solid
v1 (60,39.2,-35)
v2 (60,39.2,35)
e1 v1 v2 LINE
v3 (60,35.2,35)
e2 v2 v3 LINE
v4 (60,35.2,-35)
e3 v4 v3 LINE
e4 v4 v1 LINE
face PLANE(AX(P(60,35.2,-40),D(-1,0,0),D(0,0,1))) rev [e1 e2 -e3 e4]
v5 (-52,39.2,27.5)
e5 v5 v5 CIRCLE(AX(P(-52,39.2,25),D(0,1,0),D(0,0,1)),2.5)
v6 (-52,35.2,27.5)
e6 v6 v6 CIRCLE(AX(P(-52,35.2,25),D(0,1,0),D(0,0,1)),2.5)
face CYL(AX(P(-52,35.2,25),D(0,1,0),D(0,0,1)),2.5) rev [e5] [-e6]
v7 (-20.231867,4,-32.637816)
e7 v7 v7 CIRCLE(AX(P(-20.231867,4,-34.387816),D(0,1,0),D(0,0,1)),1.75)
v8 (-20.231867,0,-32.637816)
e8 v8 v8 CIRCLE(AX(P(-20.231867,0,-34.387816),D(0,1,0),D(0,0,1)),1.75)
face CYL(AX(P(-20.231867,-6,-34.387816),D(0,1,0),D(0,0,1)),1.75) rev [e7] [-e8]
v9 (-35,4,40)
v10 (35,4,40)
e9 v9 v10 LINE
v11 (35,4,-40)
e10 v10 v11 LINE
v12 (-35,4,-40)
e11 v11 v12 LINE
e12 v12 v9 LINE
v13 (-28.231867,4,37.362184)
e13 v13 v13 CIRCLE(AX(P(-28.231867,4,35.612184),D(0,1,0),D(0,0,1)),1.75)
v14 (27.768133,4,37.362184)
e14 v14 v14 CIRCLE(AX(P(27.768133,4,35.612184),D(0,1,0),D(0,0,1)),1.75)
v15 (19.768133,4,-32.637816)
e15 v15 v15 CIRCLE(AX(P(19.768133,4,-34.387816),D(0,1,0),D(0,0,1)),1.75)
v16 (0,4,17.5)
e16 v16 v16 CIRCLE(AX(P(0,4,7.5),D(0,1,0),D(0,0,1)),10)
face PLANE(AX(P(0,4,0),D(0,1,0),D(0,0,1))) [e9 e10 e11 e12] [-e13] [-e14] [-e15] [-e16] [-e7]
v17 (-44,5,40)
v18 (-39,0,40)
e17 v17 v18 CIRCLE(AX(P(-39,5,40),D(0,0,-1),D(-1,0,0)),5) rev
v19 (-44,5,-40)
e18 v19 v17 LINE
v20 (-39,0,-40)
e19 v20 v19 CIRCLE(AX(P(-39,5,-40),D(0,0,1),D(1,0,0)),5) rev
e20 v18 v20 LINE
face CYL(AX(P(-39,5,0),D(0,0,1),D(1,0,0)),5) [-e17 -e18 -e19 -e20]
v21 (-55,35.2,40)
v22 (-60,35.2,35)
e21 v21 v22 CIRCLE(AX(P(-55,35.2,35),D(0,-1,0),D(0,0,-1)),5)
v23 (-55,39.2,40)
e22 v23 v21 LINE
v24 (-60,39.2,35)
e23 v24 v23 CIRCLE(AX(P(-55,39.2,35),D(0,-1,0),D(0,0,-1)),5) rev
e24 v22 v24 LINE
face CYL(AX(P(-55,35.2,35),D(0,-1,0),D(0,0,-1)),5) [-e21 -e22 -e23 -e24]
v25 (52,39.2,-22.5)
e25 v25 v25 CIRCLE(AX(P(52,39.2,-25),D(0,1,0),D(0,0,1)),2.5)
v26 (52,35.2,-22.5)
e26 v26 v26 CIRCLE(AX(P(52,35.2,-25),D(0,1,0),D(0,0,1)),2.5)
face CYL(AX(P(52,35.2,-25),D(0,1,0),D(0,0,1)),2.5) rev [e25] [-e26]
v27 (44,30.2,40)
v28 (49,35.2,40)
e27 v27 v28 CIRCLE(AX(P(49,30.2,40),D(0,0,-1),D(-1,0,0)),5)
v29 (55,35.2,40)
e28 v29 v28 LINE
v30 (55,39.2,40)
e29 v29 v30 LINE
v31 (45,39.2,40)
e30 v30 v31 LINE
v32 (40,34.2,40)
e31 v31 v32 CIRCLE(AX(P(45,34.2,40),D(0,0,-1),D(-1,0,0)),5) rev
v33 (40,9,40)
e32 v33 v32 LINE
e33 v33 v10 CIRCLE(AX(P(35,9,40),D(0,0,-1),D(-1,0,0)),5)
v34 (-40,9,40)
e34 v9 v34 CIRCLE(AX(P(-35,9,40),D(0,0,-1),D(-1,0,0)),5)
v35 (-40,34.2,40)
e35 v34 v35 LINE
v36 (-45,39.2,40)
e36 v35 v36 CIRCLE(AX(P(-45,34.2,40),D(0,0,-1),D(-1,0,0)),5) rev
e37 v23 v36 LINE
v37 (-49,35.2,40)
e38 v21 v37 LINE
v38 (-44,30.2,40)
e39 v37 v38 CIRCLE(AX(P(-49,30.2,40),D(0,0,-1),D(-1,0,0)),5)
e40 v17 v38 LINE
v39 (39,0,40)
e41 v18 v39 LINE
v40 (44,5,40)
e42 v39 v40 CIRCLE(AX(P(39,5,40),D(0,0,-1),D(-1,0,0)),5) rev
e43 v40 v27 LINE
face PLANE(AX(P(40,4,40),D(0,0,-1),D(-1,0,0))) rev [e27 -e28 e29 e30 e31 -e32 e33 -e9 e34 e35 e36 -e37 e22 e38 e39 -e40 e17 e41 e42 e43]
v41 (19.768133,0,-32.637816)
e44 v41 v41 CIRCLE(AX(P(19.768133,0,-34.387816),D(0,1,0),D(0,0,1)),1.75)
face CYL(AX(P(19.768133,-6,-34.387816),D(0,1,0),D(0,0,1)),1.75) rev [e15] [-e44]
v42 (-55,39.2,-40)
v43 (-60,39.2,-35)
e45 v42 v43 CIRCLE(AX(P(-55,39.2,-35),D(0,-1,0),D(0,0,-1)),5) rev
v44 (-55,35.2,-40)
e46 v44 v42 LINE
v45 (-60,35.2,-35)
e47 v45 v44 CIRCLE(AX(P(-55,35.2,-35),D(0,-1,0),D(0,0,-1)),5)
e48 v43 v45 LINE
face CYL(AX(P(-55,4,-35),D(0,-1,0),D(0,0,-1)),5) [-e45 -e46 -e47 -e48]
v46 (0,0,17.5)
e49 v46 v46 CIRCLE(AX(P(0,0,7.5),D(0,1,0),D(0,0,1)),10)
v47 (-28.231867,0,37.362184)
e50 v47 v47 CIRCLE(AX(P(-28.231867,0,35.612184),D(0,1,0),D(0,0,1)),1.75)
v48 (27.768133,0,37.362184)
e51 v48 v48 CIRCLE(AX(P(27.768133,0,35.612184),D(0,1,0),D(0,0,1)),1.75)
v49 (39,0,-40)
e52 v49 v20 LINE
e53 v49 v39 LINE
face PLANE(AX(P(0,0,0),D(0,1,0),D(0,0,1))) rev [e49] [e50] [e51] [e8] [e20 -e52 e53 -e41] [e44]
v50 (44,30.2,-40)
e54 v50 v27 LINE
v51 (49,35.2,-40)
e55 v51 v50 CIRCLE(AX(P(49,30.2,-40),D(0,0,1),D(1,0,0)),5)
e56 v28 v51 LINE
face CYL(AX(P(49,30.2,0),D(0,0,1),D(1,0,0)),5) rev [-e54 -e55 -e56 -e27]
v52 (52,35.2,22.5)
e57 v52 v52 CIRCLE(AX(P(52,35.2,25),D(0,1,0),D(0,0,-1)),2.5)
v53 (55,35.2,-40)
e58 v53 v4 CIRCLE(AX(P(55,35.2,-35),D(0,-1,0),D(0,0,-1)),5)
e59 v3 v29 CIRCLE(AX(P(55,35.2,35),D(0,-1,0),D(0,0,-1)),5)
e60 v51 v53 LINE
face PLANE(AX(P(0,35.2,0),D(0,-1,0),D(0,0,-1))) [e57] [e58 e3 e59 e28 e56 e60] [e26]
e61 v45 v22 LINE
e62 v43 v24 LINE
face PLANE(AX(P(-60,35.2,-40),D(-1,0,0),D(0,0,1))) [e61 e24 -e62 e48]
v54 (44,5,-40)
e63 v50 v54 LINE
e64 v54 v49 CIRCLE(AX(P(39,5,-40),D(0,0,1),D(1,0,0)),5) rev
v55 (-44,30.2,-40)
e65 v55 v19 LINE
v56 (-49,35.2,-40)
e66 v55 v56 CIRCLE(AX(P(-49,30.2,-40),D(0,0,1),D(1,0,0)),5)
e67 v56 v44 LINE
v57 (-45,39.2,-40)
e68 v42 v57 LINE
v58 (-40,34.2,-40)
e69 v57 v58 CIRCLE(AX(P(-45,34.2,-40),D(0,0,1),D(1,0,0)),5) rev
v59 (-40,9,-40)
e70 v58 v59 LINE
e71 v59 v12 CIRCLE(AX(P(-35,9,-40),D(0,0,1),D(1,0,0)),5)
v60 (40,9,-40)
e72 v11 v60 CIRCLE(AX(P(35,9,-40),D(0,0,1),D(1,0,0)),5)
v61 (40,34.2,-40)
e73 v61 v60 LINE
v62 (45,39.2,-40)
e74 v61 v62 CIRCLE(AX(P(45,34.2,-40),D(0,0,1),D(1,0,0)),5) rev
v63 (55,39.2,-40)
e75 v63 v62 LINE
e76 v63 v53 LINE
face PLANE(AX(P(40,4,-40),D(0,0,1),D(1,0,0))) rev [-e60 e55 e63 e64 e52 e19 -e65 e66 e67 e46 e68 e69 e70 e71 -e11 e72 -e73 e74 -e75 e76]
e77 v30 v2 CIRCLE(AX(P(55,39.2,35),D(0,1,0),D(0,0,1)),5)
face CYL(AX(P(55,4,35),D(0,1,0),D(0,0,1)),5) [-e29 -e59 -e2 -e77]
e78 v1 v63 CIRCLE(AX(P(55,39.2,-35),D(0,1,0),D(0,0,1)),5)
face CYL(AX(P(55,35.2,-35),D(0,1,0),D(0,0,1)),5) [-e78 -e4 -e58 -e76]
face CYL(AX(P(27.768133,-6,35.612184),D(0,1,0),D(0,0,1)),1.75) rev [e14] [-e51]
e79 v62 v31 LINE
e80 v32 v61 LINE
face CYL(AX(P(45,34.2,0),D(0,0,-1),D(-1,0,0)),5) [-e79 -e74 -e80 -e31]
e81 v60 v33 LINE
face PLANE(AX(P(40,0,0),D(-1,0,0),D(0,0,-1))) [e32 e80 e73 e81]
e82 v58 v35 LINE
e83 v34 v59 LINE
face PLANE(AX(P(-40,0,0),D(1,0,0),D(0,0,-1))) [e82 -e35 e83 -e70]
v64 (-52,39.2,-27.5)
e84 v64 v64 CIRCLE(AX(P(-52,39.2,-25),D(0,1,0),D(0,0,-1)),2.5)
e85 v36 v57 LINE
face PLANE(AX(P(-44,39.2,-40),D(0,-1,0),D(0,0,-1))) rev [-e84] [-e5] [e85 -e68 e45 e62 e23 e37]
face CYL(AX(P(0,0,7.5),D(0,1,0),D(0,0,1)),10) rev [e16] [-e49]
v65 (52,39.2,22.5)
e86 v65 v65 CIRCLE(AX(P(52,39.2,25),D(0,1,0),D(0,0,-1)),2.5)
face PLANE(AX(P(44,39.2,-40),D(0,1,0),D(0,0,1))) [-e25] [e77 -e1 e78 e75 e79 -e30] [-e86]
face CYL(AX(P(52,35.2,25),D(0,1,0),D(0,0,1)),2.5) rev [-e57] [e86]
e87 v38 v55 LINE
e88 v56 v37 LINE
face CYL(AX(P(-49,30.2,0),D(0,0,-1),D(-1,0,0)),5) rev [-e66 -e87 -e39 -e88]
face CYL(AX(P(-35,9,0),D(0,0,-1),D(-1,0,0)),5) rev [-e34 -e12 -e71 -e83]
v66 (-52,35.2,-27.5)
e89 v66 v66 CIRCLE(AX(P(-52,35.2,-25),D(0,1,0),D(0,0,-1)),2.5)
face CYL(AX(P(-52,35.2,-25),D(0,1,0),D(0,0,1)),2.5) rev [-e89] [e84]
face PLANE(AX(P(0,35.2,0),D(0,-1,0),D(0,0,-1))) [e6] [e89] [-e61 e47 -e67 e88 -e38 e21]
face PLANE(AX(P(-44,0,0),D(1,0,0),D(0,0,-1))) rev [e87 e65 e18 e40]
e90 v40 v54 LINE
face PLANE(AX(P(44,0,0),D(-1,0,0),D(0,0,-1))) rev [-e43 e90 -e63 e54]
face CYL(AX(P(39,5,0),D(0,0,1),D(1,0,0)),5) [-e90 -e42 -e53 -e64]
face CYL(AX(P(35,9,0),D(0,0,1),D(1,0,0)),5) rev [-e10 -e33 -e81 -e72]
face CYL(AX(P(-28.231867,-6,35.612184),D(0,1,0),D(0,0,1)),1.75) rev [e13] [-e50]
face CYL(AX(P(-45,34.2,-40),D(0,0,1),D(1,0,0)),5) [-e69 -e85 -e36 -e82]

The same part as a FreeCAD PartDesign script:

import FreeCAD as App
import Part
import Sketcher
Q = App.Units.Quantity


def edges_at(feature, points):
    """Names of the edges that pass closest to the given points."""
    edges = feature.Shape.Edges
    near = lambda p: min(range(len(edges)), key=lambda i: edges[i].distToShape(Part.Vertex(*p))[0])
    return sorted({f"Edge{near(p) + 1}" for p in points})

doc = App.newDocument("Part")
body = doc.addObject("PartDesign::Body", "Body")

# Sketch on XZ plane
sketch1 = body.newObject("Sketcher::SketchObject", "Sketch")
sketch1.AttachmentSupport = (doc.getObject("XZ_Plane"), [""])
sketch1.MapMode = "FlatFace"
sketch1.addGeometry(Part.LineSegment(App.Vector(-40, -40, 0), App.Vector(-40, 40, 0)), False)
sketch1.addGeometry(Part.LineSegment(App.Vector(-40, 40, 0), App.Vector(40, 40, 0)), False)
sketch1.addGeometry(Part.LineSegment(App.Vector(40, 40, 0), App.Vector(40, -40, 0)), False)
sketch1.addGeometry(Part.LineSegment(App.Vector(40, -40, 0), App.Vector(-40, -40, 0)), False)
sketch1.addConstraint(Sketcher.Constraint("Coincident", 0, 2, 1, 1))
sketch1.addConstraint(Sketcher.Constraint("Coincident", 1, 2, 2, 1))
sketch1.addConstraint(Sketcher.Constraint("Coincident", 2, 2, 3, 1))
sketch1.addConstraint(Sketcher.Constraint("Coincident", 3, 2, 0, 1))
sketch1.addConstraint(Sketcher.Constraint("Vertical", 0))
sketch1.addConstraint(Sketcher.Constraint("Horizontal", 1))
sketch1.addConstraint(Sketcher.Constraint("Vertical", 2))
sketch1.addConstraint(Sketcher.Constraint("Horizontal", 3))
sketch1.addConstraint(Sketcher.Constraint("Symmetric", 0, 2, 2, 2, -1, 1))
sketch1.addConstraint(Sketcher.Constraint("Equal", 3, 0))
sketch1.addConstraint(Sketcher.Constraint("DistanceX", 1, 1, 1, 2, Q("80 mm")))
pad1 = body.newObject("PartDesign::Pad", "Pad")
pad1.Profile = sketch1
pad1.Length = 4
pad1.Reversed = True

# Sketch on XZ plane
sketch2 = body.newObject("Sketcher::SketchObject", "Sketch001")
sketch2.AttachmentSupport = (doc.getObject("XZ_Plane"), [""])
sketch2.MapMode = "FlatFace"
sketch2.AttachmentOffset = App.Placement(App.Vector(0, 0, -4), App.Rotation())
sketch2.addGeometry(Part.Circle(App.Vector(0, 8, 0), App.Vector(0, 0, 1), 10), False)
sketch2.addConstraint(Sketcher.Constraint("PointOnObject", 0, 3, -2))
sketch2.addConstraint(Sketcher.Constraint("Diameter", 0, Q("20 mm")))
sketch2.addConstraint(Sketcher.Constraint("DistanceY", -1, 1, 0, 3, Q("7.5 mm")))
pocket1 = body.newObject("PartDesign::Pocket", "Pocket")
pocket1.Profile = sketch2
pocket1.Length = 4
pocket1.Reversed = True

# Sketch on XZ plane
sketch3 = body.newObject("Sketcher::SketchObject", "Sketch002")
sketch3.AttachmentSupport = (doc.getObject("XZ_Plane"), [""])
sketch3.MapMode = "FlatFace"
sketch3.AttachmentOffset = App.Placement(App.Vector(0, 0, -4), App.Rotation())
sketch3.addGeometry(Part.Circle(App.Vector(-28.2, 35.6, 0), App.Vector(0, 0, 1), 1.8), False)
sketch3.addGeometry(Part.Circle(App.Vector(27.8, 35.6, 0), App.Vector(0, 0, 1), 1.8), False)
sketch3.addGeometry(Part.Circle(App.Vector(19.8, -34.4, 0), App.Vector(0, 0, 1), 1.8), False)
sketch3.addGeometry(Part.Circle(App.Vector(-20.2, -34.4, 0), App.Vector(0, 0, 1), 1.8), False)
sketch3.addConstraint(Sketcher.Constraint("Equal", 0, 1))
sketch3.addConstraint(Sketcher.Constraint("Equal", 1, 2))
sketch3.addConstraint(Sketcher.Constraint("Equal", 2, 3))
sketch3.addConstraint(Sketcher.Constraint("Horizontal", 0, 3, 1, 3))
sketch3.addConstraint(Sketcher.Constraint("Horizontal", 2, 3, 3, 3))
sketch3.addConstraint(Sketcher.Constraint("Diameter", 0, Q("3.5 mm")))
sketch3.addConstraint(Sketcher.Constraint("DistanceX", 0, 3, 1, 3, Q("56 mm")))
sketch3.addConstraint(Sketcher.Constraint("DistanceX", 2, 3, 1, 3, Q("8 mm")))
sketch3.addConstraint(Sketcher.Constraint("DistanceY", 2, 3, 1, 3, Q("70 mm")))
sketch3.addConstraint(Sketcher.Constraint("DistanceX", 3, 3, 2, 3, Q("40 mm")))
sketch3.addConstraint(Sketcher.Constraint("DistanceX", 0, 3, -1, 1, Q("28.231867 mm")))
sketch3.addConstraint(Sketcher.Constraint("DistanceY", -1, 1, 0, 3, Q("35.612184 mm")))
pocket2 = body.newObject("PartDesign::Pocket", "Pocket001")
pocket2.Profile = sketch3
pocket2.Length = 10
pocket2.Reversed = True

# Sketch on YZ plane
sketch4 = body.newObject("Sketcher::SketchObject", "Sketch003")
sketch4.AttachmentSupport = (doc.getObject("YZ_Plane"), [""])
sketch4.MapMode = "FlatFace"
sketch4.AttachmentOffset = App.Placement(App.Vector(0, 0, -40), App.Rotation())
sketch4.addGeometry(Part.LineSegment(App.Vector(39, -40, 0), App.Vector(0, -40, 0)), False)
sketch4.addGeometry(Part.LineSegment(App.Vector(0, -40, 0), App.Vector(0, 40, 0)), False)
sketch4.addGeometry(Part.LineSegment(App.Vector(0, 40, 0), App.Vector(39, 40, 0)), False)
sketch4.addGeometry(Part.LineSegment(App.Vector(39, 40, 0), App.Vector(39, -40, 0)), False)
sketch4.addConstraint(Sketcher.Constraint("Coincident", 0, 2, 1, 1))
sketch4.addConstraint(Sketcher.Constraint("Coincident", 1, 2, 2, 1))
sketch4.addConstraint(Sketcher.Constraint("Coincident", 2, 2, 3, 1))
sketch4.addConstraint(Sketcher.Constraint("Coincident", 3, 2, 0, 1))
sketch4.addConstraint(Sketcher.Constraint("Horizontal", 0))
sketch4.addConstraint(Sketcher.Constraint("Vertical", 1))
sketch4.addConstraint(Sketcher.Constraint("Horizontal", 2))
sketch4.addConstraint(Sketcher.Constraint("Vertical", 3))
sketch4.addConstraint(Sketcher.Constraint("Symmetric", 0, 2, 1, 2, -1, 1))
sketch4.addConstraint(Sketcher.Constraint("DistanceY", 1, 1, 1, 2, Q("80 mm")))
sketch4.addConstraint(Sketcher.Constraint("DistanceX", 0, 2, 0, 1, Q("39.2 mm")))
pad2 = body.newObject("PartDesign::Pad", "Pad001")
pad2.Profile = sketch4
pad2.Length = 4
pad2.Reversed = True
doc.recompute()

mirrored = body.newObject("PartDesign::Mirrored", "Mirrored")
mirrored.Originals = [pad2]
mirrored.MirrorPlane = (doc.getObject("YZ_Plane"), [""])
body.Tip = mirrored

# Sketch on XZ plane
sketch5 = body.newObject("Sketcher::SketchObject", "Sketch004")
sketch5.AttachmentSupport = (doc.getObject("XZ_Plane"), [""])
sketch5.MapMode = "FlatFace"
sketch5.AttachmentOffset = App.Placement(App.Vector(0, 0, -39.2), App.Rotation())
sketch5.addGeometry(Part.LineSegment(App.Vector(-60, -40, 0), App.Vector(-60, 40, 0)), False)
sketch5.addGeometry(Part.LineSegment(App.Vector(-60, 40, 0), App.Vector(-40, 40, 0)), False)
sketch5.addGeometry(Part.LineSegment(App.Vector(-40, 40, 0), App.Vector(-40, -40, 0)), False)
sketch5.addGeometry(Part.LineSegment(App.Vector(-40, -40, 0), App.Vector(-60, -40, 0)), False)
sketch5.addConstraint(Sketcher.Constraint("Coincident", 0, 2, 1, 1))
sketch5.addConstraint(Sketcher.Constraint("Coincident", 1, 2, 2, 1))
sketch5.addConstraint(Sketcher.Constraint("Coincident", 2, 2, 3, 1))
sketch5.addConstraint(Sketcher.Constraint("Coincident", 3, 2, 0, 1))
sketch5.addConstraint(Sketcher.Constraint("Vertical", 0))
sketch5.addConstraint(Sketcher.Constraint("Horizontal", 1))
sketch5.addConstraint(Sketcher.Constraint("Vertical", 2))
sketch5.addConstraint(Sketcher.Constraint("Horizontal", 3))
sketch5.addConstraint(Sketcher.Constraint("DistanceX", 1, 1, 1, 2, Q("20 mm")))
sketch5.addConstraint(Sketcher.Constraint("DistanceY", 0, 1, 0, 2, Q("80 mm")))
sketch5.addConstraint(Sketcher.Constraint("DistanceX", 0, 2, -1, 1, Q("60 mm")))
sketch5.addConstraint(Sketcher.Constraint("DistanceY", -1, 1, 0, 2, Q("40 mm")))
pad3 = body.newObject("PartDesign::Pad", "Pad002")
pad3.Profile = sketch5
pad3.Length = 4
doc.recompute()

mirrored2 = body.newObject("PartDesign::Mirrored", "Mirrored001")
mirrored2.Originals = [pad3]
mirrored2.MirrorPlane = (doc.getObject("YZ_Plane"), [""])
body.Tip = mirrored2

# Sketch on XZ plane
sketch6 = body.newObject("Sketcher::SketchObject", "Sketch005")
sketch6.AttachmentSupport = (doc.getObject("XZ_Plane"), [""])
sketch6.MapMode = "FlatFace"
sketch6.AttachmentOffset = App.Placement(App.Vector(0, 0, -39.2), App.Rotation())
sketch6.addGeometry(Part.Circle(App.Vector(-52, 25, 0), App.Vector(0, 0, 1), 2.5), False)
sketch6.addGeometry(Part.Circle(App.Vector(-52, -25, 0), App.Vector(0, 0, 1), 2.5), False)
sketch6.addGeometry(Part.Circle(App.Vector(52, -25, 0), App.Vector(0, 0, 1), 2.5), False)
sketch6.addGeometry(Part.Circle(App.Vector(52, 25, 0), App.Vector(0, 0, 1), 2.5), False)
sketch6.addConstraint(Sketcher.Constraint("Equal", 0, 1))
sketch6.addConstraint(Sketcher.Constraint("Equal", 1, 2))
sketch6.addConstraint(Sketcher.Constraint("Equal", 2, 3))
sketch6.addConstraint(Sketcher.Constraint("Symmetric", 0, 3, 2, 3, -1, 1))
sketch6.addConstraint(Sketcher.Constraint("Symmetric", 1, 3, 3, 3, -1, 1))
sketch6.addConstraint(Sketcher.Constraint("Symmetric", 1, 3, 2, 3, -2))
sketch6.addConstraint(Sketcher.Constraint("Diameter", 0, Q("5 mm")))
sketch6.addConstraint(Sketcher.Constraint("DistanceX", 0, 3, -1, 1, Q("52 mm")))
sketch6.addConstraint(Sketcher.Constraint("DistanceY", -1, 1, 0, 3, Q("25 mm")))
pocket3 = body.newObject("PartDesign::Pocket", "Pocket002")
pocket3.Profile = sketch6
pocket3.Length = 4
pocket3.Reversed = True
doc.recompute()

fillet = body.newObject("PartDesign::Fillet", "Fillet")
fillet.Base = (pocket3, edges_at(pocket3, [
    (40, 4, 0),
    (-40, 4, 0),
    (-40, 39.2, 0),
    (-44, 0, 0),
    (40, 39.2, 0),
    (44, 0, 0),
    (-44, 35.2, 0),
    (-60, 37.2, -40),
    (-60, 37.2, 40),
    (44, 35.2, 0),
    (60, 37.2, 40),
    (60, 37.2, -40),
]))
fillet.Radius = 5

doc.recompute()
